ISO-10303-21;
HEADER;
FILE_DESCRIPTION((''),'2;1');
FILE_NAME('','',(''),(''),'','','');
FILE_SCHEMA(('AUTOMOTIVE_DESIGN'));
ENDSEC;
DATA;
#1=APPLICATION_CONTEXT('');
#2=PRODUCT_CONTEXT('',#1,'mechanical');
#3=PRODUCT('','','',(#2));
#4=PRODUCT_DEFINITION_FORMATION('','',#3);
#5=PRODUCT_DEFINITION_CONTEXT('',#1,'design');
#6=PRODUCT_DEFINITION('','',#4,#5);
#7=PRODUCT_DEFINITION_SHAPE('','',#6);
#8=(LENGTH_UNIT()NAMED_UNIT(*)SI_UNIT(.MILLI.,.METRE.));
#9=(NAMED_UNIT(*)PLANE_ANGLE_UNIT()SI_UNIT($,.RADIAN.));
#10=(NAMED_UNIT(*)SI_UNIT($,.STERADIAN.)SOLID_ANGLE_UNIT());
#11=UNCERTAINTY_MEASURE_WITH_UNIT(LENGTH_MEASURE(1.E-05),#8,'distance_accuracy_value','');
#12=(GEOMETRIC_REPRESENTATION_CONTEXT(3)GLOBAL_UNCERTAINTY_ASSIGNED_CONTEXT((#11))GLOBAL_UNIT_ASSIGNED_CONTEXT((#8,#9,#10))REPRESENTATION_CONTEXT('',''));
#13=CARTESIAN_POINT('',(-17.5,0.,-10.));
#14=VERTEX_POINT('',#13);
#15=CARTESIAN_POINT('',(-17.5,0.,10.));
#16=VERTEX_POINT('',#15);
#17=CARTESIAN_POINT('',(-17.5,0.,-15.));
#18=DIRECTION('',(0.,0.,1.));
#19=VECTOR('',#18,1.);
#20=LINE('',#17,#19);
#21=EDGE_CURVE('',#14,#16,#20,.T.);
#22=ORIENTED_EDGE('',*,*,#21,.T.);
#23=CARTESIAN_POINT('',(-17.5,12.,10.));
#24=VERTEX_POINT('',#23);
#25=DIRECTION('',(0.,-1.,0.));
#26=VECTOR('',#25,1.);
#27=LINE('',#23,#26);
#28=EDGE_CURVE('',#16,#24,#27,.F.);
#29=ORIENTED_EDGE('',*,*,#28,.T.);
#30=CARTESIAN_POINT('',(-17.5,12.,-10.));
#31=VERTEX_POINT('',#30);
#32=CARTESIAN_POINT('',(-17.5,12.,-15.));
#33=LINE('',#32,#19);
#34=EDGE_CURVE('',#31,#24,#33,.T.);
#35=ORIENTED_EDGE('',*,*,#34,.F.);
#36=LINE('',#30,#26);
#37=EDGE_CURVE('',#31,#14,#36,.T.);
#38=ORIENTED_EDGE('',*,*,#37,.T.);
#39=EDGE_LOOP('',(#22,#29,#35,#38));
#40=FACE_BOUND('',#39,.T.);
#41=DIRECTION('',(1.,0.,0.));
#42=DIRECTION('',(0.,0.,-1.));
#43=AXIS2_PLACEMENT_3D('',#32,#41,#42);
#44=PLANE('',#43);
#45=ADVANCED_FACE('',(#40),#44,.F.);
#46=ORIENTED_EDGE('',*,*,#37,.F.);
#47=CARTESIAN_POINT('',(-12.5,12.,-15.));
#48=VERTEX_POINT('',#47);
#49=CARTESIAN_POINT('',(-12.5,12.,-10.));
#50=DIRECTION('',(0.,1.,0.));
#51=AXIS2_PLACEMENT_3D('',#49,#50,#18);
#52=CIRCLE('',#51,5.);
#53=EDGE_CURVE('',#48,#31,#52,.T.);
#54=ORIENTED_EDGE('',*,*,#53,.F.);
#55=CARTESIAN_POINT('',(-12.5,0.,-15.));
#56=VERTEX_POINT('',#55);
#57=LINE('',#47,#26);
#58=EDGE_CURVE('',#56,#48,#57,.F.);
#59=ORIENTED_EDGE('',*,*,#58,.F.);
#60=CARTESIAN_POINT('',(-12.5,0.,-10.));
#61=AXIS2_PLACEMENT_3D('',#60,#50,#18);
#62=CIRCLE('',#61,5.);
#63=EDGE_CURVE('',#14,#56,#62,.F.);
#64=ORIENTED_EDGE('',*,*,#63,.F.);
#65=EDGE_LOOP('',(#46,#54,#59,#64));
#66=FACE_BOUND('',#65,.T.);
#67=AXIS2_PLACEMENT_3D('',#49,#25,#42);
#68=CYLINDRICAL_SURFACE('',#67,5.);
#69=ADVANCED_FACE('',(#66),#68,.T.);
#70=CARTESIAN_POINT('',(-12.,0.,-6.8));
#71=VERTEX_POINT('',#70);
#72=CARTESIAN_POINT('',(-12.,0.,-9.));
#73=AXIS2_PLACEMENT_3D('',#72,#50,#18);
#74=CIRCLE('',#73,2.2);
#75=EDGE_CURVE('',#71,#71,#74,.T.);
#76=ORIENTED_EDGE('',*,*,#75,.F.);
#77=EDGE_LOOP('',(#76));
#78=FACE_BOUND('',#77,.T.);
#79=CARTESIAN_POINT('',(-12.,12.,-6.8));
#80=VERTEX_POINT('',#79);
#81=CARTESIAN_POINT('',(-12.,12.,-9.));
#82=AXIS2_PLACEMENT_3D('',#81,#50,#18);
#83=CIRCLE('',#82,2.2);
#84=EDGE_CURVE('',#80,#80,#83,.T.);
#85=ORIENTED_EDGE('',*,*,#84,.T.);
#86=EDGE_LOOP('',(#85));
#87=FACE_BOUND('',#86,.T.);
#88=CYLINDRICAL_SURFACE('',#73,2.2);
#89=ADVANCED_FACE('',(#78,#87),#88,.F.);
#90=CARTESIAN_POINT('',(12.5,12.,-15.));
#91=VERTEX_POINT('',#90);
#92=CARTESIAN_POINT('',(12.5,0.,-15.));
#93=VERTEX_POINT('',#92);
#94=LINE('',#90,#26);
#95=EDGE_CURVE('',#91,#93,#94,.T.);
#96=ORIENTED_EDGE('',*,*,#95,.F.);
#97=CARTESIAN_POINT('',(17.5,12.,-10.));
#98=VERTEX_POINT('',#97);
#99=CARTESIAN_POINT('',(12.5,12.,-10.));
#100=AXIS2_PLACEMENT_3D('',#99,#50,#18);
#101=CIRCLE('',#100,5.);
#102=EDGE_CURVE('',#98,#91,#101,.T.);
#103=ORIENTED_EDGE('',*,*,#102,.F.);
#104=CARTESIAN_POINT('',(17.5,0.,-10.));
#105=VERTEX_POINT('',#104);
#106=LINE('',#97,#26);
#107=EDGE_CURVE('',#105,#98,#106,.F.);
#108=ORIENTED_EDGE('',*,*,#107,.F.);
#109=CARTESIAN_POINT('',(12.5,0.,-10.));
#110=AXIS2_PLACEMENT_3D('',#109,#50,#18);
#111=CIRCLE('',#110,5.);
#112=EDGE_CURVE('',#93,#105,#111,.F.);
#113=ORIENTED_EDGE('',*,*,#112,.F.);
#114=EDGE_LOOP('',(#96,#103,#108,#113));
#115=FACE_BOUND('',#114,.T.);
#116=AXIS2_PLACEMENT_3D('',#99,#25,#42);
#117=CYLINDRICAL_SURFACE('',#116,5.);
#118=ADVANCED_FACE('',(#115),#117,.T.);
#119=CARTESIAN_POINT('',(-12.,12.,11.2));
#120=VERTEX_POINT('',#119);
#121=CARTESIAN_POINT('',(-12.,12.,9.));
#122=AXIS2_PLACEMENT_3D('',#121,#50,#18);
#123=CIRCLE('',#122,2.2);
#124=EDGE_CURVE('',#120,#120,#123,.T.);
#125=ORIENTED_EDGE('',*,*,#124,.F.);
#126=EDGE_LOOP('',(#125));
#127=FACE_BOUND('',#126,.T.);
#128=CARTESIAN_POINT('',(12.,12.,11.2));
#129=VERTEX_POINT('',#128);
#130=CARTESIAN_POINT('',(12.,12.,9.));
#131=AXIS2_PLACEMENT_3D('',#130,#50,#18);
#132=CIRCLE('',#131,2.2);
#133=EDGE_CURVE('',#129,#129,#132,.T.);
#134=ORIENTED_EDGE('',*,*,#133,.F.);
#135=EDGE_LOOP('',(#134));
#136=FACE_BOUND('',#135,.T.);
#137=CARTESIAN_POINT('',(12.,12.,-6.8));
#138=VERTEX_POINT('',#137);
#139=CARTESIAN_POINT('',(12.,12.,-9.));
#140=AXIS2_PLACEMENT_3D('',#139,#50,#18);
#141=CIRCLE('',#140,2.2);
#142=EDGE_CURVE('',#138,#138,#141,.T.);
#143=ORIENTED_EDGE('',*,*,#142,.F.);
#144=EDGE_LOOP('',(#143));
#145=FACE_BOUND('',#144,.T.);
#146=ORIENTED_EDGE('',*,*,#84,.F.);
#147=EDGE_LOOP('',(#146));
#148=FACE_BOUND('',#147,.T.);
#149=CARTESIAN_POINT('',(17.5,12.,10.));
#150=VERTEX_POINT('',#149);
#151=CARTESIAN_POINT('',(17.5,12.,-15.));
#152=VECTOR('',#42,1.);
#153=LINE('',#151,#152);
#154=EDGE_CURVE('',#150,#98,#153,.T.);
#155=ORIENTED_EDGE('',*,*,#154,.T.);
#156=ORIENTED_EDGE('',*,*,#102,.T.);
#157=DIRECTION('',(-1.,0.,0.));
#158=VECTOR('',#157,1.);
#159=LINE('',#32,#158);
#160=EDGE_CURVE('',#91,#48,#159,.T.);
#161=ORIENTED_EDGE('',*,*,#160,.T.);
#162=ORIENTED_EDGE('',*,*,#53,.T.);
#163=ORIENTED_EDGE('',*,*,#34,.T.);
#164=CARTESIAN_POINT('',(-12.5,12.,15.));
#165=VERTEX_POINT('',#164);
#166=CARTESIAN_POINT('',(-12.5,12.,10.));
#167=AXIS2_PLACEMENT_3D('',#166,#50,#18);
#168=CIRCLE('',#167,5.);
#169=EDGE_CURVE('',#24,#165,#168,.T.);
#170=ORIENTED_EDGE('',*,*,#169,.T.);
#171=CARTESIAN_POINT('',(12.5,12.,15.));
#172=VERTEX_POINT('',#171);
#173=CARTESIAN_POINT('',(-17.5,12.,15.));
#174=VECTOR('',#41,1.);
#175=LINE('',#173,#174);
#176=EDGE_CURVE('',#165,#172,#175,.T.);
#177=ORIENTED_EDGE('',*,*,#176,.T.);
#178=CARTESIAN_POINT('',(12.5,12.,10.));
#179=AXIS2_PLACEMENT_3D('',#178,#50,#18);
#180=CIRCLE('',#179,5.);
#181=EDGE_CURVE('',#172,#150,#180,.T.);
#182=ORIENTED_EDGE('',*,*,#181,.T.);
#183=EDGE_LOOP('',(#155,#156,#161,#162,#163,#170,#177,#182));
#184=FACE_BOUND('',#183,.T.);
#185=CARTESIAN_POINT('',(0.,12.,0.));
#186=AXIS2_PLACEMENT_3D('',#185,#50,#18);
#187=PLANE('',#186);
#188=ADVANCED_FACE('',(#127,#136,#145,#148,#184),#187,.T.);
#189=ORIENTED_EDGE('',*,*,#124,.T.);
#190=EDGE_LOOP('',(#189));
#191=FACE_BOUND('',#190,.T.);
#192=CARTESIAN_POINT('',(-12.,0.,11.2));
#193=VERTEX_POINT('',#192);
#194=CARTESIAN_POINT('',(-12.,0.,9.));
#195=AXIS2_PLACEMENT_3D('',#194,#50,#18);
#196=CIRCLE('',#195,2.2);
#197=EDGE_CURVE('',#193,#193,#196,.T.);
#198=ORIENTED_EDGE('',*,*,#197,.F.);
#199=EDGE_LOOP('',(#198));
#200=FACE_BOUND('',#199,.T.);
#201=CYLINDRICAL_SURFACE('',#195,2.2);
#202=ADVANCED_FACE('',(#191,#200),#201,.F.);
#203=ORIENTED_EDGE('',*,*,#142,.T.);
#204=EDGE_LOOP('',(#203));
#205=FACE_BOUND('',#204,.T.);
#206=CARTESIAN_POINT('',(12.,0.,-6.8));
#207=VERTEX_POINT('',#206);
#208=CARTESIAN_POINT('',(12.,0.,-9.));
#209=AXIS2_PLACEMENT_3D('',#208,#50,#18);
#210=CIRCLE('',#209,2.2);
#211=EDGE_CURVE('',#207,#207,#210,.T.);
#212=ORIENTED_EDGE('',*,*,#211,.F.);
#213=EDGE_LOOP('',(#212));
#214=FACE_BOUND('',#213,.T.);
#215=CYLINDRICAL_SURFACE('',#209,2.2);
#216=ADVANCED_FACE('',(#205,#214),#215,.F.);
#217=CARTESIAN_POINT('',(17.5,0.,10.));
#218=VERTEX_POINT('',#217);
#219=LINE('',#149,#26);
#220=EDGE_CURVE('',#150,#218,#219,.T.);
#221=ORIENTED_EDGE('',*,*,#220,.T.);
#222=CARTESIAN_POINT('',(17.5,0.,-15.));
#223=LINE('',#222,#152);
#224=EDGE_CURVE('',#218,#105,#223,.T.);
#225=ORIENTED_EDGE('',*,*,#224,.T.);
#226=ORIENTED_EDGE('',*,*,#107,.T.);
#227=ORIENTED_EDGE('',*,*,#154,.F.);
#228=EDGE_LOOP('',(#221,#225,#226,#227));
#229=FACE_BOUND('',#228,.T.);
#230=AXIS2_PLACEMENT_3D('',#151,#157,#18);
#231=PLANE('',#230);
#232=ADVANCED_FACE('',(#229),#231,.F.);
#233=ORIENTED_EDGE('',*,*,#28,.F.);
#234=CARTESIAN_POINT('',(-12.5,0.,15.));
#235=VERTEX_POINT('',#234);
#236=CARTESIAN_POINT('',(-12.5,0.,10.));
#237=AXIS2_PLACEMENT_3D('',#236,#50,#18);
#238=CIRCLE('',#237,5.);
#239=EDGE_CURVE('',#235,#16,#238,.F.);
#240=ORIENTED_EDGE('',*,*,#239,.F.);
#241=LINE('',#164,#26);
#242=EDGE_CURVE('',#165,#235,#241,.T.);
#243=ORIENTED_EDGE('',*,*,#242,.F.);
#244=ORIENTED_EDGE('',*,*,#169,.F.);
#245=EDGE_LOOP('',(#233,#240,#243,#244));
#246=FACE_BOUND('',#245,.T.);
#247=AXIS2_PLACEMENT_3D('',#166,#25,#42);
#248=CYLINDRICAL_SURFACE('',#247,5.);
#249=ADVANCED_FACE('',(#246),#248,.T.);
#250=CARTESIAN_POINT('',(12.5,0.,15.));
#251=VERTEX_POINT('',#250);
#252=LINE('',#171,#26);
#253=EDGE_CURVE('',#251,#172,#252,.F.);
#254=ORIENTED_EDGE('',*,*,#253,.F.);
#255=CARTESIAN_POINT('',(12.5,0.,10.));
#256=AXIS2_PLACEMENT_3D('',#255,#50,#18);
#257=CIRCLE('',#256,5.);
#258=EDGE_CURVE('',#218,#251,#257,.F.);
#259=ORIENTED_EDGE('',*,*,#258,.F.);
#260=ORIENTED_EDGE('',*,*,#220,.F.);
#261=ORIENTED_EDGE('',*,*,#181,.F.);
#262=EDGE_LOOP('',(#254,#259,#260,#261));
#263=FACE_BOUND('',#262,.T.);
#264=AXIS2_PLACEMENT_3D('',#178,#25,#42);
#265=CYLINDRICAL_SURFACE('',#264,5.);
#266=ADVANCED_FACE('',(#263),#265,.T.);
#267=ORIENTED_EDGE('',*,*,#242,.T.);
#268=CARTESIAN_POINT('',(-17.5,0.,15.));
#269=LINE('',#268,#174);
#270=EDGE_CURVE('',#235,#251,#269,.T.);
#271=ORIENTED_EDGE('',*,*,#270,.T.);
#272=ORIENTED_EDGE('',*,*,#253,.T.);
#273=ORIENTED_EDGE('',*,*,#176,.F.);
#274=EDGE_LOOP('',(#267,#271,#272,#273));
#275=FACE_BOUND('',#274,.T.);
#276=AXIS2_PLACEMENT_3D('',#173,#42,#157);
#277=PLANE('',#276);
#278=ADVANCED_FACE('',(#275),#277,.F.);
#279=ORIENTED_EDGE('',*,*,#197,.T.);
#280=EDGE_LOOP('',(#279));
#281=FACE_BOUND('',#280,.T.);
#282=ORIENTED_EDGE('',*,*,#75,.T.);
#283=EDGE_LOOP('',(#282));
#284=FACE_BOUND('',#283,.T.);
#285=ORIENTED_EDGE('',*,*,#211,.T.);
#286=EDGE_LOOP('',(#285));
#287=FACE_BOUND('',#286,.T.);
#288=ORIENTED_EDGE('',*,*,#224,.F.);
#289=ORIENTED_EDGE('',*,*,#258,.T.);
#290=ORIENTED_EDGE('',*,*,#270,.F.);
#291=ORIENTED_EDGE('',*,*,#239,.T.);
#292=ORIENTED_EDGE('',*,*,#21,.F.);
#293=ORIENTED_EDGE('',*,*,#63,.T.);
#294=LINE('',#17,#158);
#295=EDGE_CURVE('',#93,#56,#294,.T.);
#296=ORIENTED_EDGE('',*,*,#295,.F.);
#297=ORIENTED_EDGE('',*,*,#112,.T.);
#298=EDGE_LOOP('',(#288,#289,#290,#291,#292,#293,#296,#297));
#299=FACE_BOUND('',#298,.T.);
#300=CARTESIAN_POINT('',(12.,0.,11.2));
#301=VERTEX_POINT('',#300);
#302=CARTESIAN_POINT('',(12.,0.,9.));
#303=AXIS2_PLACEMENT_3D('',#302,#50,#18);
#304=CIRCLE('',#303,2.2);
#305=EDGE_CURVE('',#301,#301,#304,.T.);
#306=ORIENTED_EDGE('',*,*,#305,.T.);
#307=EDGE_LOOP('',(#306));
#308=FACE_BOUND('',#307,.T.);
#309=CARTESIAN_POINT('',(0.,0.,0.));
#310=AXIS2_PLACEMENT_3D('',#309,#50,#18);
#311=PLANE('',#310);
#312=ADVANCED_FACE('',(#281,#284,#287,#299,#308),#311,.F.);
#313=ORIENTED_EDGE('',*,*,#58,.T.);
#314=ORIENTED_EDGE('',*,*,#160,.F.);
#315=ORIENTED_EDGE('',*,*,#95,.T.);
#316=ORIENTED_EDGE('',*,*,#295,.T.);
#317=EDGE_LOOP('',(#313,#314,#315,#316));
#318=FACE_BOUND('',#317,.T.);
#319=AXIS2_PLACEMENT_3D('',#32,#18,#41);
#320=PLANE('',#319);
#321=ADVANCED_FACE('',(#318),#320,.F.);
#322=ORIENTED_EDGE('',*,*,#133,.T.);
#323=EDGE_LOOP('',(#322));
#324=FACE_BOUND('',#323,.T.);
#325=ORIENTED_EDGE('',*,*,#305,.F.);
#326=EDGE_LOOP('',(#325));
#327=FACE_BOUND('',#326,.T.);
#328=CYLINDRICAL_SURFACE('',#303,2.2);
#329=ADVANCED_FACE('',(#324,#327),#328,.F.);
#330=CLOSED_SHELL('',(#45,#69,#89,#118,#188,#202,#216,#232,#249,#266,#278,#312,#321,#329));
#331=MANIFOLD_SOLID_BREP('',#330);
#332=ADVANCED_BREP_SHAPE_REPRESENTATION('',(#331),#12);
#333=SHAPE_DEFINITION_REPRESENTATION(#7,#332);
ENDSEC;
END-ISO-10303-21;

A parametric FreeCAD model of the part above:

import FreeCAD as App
import Part
import Sketcher
from FreeCAD import Vector
Q = App.Units.Quantity


def edges_at(feature, points):
    """Names of the edges that pass closest to the given points."""
    edges = feature.Shape.Edges
    near = lambda p: min(range(len(edges)), key=lambda i: edges[i].distToShape(Part.Vertex(*p))[0])
    return sorted({f"Edge{near(p) + 1}" for p in points})


def add_polygon(sketch, points):
    """Adds a closed chain of lines whose ends are joined by coincident constraints."""
    first, n = sketch.GeometryCount, len(points)
    for a, b in zip(points, points[1:] + points[:1]):
        sketch.addGeometry(Part.LineSegment(App.Vector(*a, 0), App.Vector(*b, 0)), False)
    for i in range(n):
        sketch.addConstraint(Sketcher.Constraint("Coincident", first + i, 2, first + (i + 1) % n, 1))

doc = App.newDocument("Part")
body = doc.addObject("PartDesign::Body", "Body")

# Sketch on XZ plane
sketch1 = body.newObject("Sketcher::SketchObject", "Sketch")
sketch1.AttachmentSupport = (doc.getObject("XZ_Plane"), [""])
sketch1.MapMode = "FlatFace"
add_polygon(sketch1, [(-18, -15), (-18, 15), (18, 15), (18, -15)])  # lines 0-3
sketch1.addConstraint([
    Sketcher.Constraint("Vertical", 0),
    Sketcher.Constraint("Horizontal", 1),
    Sketcher.Constraint("Vertical", 2),
    Sketcher.Constraint("Horizontal", 3),
    Sketcher.Constraint("Symmetric", 0, 2, 2, 2, -1, 1),
    Sketcher.Constraint("DistanceX", 1, 1, 1, 2, Q("35 mm")),
    Sketcher.Constraint("DistanceY", 0, 1, 0, 2, Q("30 mm")),
])
pad1 = body.newObject("PartDesign::Pad", "Pad")
pad1.Profile = sketch1
pad1.Length = 12
pad1.Reversed = True

# Sketch on XZ plane
sketch2 = body.newObject("Sketcher::SketchObject", "Sketch001")
sketch2.AttachmentSupport = (doc.getObject("XZ_Plane"), [""])
sketch2.MapMode = "FlatFace"
sketch2.AttachmentOffset = App.Placement(Vector(0, 0, -12), App.Rotation())
sketch2.addGeometry([
    Part.Circle(Vector(-12, -9, 0), Vector(0, 0, 1), 2.2),
    Part.Circle(Vector(12, -9, 0), Vector(0, 0, 1), 2.2),
    Part.Circle(Vector(12, 9, 0), Vector(0, 0, 1), 2.2),
    Part.Circle(Vector(-12, 9, 0), Vector(0, 0, 1), 2.2),
], False)
sketch2.addConstraint([
    Sketcher.Constraint("Equal", 0, 1),
    Sketcher.Constraint("Equal", 1, 2),
    Sketcher.Constraint("Equal", 2, 3),
    Sketcher.Constraint("Symmetric", 0, 3, 2, 3, -1, 1),
    Sketcher.Constraint("Symmetric", 1, 3, 3, 3, -1, 1),
    Sketcher.Constraint("Symmetric", 0, 3, 1, 3, -2),
    Sketcher.Constraint("Diameter", 0, Q("4.4 mm")),
    Sketcher.Constraint("DistanceX", 0, 3, -1, 1, Q("12 mm")),
    Sketcher.Constraint("DistanceY", 0, 3, -1, 1, Q("9 mm")),
])
pocket1 = body.newObject("PartDesign::Pocket", "Pocket")
pocket1.Profile = sketch2
pocket1.Type = "ThroughAll"
pocket1.Reversed = True
doc.recompute()

fillet = body.newObject("PartDesign::Fillet", "Fillet")
fillet.Base = (pocket1, edges_at(pocket1, [
    (17.5, 6, 15),
    (-17.5, 6, 15),
    (-17.5, 6, -15),
    (17.5, 6, -15),
]))
fillet.Radius = 5

doc.recompute()
